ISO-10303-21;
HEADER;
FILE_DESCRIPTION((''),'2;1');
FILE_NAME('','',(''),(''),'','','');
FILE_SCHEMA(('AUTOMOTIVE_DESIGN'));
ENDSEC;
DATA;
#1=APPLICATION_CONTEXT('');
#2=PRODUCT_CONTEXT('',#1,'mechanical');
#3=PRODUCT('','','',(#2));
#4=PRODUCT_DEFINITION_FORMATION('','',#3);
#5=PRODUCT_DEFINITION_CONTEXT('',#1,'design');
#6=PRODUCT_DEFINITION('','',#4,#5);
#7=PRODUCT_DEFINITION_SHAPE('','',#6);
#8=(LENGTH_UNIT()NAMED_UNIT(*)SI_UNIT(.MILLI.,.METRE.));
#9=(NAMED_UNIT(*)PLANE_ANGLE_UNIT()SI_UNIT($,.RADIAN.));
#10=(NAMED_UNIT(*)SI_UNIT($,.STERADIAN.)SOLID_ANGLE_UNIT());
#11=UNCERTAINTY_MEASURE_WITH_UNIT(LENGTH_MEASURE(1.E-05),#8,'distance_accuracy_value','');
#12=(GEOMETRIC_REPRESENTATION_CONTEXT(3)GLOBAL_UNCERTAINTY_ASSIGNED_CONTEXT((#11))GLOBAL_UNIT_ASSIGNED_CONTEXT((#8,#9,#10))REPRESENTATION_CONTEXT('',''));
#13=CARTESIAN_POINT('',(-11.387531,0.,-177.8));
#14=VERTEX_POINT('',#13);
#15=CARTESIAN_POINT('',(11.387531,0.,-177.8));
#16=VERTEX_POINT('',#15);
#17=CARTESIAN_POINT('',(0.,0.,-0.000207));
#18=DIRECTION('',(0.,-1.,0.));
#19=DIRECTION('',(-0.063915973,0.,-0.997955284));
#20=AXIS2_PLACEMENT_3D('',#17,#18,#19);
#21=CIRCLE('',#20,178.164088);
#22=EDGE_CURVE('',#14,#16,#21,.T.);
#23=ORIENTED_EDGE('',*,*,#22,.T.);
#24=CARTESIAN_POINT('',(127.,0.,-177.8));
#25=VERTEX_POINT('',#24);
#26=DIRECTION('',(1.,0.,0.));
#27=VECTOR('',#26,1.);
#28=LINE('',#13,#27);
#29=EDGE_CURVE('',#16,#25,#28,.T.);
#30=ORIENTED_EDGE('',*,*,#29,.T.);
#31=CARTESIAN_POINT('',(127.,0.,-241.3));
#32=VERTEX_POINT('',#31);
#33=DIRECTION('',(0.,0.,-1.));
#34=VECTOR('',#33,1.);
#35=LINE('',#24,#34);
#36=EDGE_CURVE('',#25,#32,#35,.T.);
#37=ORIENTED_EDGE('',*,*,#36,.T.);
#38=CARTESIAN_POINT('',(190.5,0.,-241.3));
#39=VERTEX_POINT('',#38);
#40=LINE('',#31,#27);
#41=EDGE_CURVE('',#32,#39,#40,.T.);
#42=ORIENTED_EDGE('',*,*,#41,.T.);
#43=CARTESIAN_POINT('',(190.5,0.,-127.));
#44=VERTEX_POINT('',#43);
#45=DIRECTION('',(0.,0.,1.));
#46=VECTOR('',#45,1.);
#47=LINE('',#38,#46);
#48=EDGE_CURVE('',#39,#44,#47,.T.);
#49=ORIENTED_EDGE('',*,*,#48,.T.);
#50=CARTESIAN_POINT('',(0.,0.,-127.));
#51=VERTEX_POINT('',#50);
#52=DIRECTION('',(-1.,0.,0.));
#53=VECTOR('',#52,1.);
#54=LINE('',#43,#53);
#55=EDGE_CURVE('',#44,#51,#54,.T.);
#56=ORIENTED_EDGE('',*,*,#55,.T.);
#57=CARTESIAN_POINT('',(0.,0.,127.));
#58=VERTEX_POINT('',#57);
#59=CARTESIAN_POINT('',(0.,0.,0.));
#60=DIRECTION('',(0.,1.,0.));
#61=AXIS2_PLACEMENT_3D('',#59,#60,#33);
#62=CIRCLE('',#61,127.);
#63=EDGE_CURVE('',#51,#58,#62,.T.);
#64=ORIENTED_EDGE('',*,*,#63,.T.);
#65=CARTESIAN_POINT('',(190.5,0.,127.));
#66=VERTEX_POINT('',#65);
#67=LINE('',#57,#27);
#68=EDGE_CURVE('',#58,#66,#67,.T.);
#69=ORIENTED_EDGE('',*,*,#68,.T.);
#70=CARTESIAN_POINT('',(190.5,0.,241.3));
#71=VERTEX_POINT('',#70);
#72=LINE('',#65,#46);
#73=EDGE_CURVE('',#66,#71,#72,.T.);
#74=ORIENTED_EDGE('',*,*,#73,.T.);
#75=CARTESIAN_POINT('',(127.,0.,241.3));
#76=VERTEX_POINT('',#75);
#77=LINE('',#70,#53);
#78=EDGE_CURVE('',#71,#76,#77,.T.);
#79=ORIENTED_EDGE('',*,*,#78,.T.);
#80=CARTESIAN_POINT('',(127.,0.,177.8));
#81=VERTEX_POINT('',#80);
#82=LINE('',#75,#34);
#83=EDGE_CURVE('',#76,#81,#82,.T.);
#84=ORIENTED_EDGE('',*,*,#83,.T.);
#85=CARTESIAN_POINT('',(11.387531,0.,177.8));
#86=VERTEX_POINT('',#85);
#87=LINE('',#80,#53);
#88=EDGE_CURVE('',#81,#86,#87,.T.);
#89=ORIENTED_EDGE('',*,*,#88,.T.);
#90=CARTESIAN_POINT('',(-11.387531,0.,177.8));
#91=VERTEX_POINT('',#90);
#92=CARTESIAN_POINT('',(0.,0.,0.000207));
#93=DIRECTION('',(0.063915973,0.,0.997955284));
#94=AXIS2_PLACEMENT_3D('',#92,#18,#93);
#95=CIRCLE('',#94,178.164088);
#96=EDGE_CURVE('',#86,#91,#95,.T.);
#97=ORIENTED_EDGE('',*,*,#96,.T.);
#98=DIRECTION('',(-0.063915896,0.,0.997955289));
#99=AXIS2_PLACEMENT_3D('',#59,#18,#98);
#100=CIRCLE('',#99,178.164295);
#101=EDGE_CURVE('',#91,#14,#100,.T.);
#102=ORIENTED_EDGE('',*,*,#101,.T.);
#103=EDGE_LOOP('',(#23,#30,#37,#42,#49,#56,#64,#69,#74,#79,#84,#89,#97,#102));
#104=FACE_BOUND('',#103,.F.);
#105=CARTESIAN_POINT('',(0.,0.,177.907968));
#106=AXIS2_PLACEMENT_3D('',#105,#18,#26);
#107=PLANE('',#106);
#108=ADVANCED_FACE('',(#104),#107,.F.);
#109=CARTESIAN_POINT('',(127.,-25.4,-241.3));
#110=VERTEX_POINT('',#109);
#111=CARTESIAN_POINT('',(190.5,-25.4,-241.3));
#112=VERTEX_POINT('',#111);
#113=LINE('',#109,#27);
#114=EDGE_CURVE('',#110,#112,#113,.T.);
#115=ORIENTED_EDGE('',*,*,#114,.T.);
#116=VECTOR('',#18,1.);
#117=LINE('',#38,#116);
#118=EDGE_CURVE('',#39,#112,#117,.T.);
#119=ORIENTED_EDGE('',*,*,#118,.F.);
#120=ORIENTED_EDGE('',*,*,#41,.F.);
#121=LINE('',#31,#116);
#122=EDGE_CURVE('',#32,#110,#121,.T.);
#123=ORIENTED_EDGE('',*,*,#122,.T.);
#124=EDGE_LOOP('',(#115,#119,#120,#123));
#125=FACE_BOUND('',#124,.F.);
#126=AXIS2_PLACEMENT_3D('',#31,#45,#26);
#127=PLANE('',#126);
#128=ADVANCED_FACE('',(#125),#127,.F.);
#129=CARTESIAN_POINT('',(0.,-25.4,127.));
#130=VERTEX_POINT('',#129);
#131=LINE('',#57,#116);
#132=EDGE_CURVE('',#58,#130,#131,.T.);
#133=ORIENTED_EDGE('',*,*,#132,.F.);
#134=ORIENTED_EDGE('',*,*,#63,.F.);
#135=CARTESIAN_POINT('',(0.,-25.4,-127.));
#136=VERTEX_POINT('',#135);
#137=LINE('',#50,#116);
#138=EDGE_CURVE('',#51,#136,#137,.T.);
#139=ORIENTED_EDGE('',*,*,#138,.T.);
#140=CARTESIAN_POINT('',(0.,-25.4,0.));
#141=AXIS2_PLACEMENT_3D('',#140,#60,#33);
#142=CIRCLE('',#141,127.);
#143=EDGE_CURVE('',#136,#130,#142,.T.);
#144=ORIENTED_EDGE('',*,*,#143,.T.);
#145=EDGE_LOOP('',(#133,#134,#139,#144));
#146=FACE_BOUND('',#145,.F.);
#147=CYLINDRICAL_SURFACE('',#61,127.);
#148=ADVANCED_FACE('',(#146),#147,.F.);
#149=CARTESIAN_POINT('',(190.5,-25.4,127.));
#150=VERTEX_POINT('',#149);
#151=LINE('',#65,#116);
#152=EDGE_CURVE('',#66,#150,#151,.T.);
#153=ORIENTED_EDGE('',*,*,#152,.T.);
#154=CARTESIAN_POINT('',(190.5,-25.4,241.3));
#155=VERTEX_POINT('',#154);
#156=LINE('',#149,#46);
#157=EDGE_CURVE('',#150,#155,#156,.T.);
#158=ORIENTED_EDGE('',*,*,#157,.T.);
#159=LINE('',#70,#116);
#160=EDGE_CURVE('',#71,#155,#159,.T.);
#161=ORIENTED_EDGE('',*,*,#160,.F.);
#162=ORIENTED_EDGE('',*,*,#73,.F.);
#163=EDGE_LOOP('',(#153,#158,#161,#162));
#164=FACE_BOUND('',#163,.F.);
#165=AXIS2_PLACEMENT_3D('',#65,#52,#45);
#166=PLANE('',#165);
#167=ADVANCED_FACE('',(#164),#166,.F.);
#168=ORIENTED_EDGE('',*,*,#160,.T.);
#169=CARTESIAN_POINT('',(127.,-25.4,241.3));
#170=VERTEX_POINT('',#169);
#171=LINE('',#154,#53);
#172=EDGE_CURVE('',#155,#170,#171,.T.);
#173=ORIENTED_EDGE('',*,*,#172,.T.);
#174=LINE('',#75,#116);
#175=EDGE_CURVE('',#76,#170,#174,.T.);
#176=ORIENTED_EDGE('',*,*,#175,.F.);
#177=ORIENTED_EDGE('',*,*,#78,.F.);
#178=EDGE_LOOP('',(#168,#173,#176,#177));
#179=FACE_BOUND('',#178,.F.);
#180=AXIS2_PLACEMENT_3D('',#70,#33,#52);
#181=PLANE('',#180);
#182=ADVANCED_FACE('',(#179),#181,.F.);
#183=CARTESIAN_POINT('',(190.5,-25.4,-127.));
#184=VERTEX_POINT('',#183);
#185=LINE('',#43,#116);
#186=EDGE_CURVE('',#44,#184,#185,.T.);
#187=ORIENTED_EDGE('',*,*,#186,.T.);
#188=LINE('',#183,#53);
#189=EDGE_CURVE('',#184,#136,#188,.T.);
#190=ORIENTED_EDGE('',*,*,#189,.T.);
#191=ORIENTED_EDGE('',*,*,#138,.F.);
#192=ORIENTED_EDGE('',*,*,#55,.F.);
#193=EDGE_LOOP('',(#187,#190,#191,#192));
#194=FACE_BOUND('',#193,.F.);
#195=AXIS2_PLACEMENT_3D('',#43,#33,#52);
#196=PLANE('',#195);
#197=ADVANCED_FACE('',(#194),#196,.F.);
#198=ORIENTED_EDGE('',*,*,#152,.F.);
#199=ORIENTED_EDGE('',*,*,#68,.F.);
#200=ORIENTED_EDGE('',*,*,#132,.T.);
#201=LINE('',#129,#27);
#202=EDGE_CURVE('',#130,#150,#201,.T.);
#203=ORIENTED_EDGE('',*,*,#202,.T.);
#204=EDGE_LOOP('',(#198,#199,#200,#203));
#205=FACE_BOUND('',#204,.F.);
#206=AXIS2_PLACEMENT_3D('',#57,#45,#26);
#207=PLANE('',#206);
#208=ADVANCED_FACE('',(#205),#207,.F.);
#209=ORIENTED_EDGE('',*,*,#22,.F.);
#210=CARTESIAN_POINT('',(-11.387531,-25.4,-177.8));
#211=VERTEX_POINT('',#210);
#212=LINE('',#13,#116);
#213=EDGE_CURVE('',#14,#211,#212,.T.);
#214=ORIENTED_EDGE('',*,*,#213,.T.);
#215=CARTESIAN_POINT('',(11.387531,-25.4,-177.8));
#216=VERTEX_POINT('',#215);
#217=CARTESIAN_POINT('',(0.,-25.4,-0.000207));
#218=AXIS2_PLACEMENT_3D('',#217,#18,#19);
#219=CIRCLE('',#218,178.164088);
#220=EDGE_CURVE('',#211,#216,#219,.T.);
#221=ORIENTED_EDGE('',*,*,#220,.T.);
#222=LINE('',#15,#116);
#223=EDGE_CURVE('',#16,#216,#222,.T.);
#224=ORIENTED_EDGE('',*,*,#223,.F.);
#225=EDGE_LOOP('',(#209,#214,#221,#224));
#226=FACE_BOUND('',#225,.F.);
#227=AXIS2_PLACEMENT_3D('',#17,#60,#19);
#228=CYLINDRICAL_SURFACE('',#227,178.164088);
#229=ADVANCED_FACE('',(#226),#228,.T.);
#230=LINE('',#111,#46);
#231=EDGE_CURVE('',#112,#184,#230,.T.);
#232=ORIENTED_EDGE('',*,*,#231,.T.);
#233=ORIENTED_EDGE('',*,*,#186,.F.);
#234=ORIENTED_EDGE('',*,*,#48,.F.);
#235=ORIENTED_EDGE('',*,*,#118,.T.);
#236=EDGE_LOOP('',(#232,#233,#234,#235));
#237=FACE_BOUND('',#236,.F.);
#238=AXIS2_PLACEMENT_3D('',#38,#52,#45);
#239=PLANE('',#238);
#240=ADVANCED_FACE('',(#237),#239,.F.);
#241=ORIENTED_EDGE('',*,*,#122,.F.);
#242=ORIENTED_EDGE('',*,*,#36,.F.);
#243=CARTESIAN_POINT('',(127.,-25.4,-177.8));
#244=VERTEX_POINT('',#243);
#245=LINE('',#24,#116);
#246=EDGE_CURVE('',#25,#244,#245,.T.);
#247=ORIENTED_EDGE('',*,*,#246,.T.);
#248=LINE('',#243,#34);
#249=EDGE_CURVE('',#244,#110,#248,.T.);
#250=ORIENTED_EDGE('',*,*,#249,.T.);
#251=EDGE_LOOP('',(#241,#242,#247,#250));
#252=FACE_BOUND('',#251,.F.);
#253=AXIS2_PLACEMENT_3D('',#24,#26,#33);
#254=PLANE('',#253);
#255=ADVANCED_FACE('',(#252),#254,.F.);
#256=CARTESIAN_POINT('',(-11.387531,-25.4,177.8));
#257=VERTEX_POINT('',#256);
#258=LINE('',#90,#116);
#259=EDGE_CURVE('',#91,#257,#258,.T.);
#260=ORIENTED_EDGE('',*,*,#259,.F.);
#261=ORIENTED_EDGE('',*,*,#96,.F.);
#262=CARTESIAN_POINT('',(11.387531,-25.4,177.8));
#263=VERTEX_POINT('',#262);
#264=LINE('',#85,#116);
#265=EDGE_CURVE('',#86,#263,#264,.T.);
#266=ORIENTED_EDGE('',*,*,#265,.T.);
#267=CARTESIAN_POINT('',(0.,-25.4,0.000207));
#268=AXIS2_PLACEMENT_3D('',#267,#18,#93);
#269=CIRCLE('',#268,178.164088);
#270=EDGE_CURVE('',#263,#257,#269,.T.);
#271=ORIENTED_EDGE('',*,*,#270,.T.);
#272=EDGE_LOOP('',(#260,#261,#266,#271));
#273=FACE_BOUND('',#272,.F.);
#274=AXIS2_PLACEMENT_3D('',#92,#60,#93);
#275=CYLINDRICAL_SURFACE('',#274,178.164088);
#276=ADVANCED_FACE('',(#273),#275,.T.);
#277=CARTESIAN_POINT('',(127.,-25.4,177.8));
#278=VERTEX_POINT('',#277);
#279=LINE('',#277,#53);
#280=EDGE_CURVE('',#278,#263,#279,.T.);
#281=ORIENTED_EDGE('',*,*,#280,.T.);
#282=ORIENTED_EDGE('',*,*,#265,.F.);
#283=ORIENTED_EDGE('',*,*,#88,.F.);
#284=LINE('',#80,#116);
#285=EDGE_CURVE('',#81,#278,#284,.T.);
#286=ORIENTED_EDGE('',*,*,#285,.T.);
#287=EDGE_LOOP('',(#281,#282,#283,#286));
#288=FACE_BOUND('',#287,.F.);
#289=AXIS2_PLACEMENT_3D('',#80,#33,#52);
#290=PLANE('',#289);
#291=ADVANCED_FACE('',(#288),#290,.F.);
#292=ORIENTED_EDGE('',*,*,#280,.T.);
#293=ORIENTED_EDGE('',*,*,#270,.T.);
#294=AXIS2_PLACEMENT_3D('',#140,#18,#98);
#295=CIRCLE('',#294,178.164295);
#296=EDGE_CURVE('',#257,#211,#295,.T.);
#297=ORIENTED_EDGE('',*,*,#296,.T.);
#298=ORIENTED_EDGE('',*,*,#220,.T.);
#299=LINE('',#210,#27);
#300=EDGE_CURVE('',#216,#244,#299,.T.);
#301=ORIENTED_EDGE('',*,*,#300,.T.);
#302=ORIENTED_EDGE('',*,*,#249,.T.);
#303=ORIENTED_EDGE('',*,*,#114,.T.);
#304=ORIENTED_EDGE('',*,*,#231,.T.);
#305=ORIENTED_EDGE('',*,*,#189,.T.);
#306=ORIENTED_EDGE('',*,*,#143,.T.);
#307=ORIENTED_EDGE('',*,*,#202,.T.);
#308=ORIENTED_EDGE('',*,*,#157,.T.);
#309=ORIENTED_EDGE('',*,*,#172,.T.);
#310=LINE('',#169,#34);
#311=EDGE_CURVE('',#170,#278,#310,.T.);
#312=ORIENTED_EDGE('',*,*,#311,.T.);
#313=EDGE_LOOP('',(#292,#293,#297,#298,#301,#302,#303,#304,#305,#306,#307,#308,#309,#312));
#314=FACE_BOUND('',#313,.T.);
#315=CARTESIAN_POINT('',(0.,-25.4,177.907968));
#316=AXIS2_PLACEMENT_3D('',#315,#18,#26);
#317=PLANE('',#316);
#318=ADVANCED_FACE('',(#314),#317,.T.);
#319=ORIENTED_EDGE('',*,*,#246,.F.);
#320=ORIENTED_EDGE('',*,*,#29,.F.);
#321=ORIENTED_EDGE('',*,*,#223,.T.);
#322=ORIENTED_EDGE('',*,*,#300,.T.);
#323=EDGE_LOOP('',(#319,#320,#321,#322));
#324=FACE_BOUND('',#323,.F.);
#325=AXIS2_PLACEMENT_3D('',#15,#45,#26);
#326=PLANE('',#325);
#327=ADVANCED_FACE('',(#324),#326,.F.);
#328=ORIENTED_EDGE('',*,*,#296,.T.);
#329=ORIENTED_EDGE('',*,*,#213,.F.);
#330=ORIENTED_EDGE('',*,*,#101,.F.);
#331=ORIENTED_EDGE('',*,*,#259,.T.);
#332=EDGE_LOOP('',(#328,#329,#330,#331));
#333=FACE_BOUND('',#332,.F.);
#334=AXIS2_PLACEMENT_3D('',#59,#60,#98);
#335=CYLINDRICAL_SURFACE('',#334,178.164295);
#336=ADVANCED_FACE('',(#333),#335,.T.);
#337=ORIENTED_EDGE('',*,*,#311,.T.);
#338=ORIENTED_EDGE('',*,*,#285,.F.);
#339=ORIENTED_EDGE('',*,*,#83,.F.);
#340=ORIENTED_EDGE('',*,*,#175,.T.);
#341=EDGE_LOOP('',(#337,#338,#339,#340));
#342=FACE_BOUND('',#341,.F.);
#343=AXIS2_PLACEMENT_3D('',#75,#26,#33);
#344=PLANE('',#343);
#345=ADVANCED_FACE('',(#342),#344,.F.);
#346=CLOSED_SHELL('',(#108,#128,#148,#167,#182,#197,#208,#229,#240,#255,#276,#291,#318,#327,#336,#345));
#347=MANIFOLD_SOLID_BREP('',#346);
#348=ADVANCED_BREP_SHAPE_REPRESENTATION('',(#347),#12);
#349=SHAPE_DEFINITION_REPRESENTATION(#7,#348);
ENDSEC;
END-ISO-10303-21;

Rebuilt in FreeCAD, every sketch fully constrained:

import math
import FreeCAD as App
import Part
import Sketcher
Q = App.Units.Quantity

doc = App.newDocument("Part")
body = doc.addObject("PartDesign::Body", "Body")

# Sketch on XZ plane
sketch1 = doc.addObject("Sketcher::SketchObject", "Sketch")
body.addObject(sketch1)
sketch1.AttachmentSupport = (doc.XZ_Plane, [""])
sketch1.MapMode = "FlatFace"
sketch1.addGeometry(Part.ArcOfCircle(Part.Circle(App.Vector(0, 0.000207, 0), App.Vector(0, 0, 1), 178.164088), math.radians(86.335386), math.radians(93.664614)), False)
sketch1.addGeometry(Part.ArcOfCircle(Part.Circle(App.Vector(0, 0, 0), App.Vector(0, 0, 1), 178.164295), math.radians(93.664609), math.radians(266.335391)), False)
sketch1.addGeometry(Part.ArcOfCircle(Part.Circle(App.Vector(0, -0.000207, 0), App.Vector(0, 0, 1), 178.164088), math.radians(-93.664614), math.radians(-86.335386)), False)
sketch1.addGeometry(Part.LineSegment(App.Vector(11.387531, -177.8, 0), App.Vector(127, -177.8, 0)), False)
sketch1.addGeometry(Part.LineSegment(App.Vector(127, -177.8, 0), App.Vector(127, -241.3, 0)), False)
sketch1.addGeometry(Part.LineSegment(App.Vector(127, -241.3, 0), App.Vector(190.5, -241.3, 0)), False)
sketch1.addGeometry(Part.LineSegment(App.Vector(190.5, -241.3, 0), App.Vector(190.5, -127, 0)), False)
sketch1.addGeometry(Part.LineSegment(App.Vector(190.5, -127, 0), App.Vector(0, -127, 0)), False)
sketch1.addGeometry(Part.ArcOfCircle(Part.Circle(App.Vector(0, 0, 0), App.Vector(0, 0, 1), 127), math.radians(90), math.radians(270)), False)
sketch1.addGeometry(Part.LineSegment(App.Vector(0, 127, 0), App.Vector(190.5, 127, 0)), False)
sketch1.addGeometry(Part.LineSegment(App.Vector(190.5, 127, 0), App.Vector(190.5, 241.3, 0)), False)
sketch1.addGeometry(Part.LineSegment(App.Vector(190.5, 241.3, 0), App.Vector(127, 241.3, 0)), False)
sketch1.addGeometry(Part.LineSegment(App.Vector(127, 241.3, 0), App.Vector(127, 177.8, 0)), False)
sketch1.addGeometry(Part.LineSegment(App.Vector(127, 177.8, 0), App.Vector(11.387531, 177.8, 0)), False)
sketch1.addConstraint(Sketcher.Constraint("Coincident", 0, 2, 1, 1))
sketch1.addConstraint(Sketcher.Constraint("Coincident", 1, 2, 2, 1))
sketch1.addConstraint(Sketcher.Constraint("Coincident", 2, 2, 3, 1))
sketch1.addConstraint(Sketcher.Constraint("Coincident", 3, 2, 4, 1))
sketch1.addConstraint(Sketcher.Constraint("Coincident", 4, 2, 5, 1))
sketch1.addConstraint(Sketcher.Constraint("Coincident", 5, 2, 6, 1))
sketch1.addConstraint(Sketcher.Constraint("Coincident", 6, 2, 7, 1))
sketch1.addConstraint(Sketcher.Constraint("Coincident", 7, 2, 8, 2))
sketch1.addConstraint(Sketcher.Constraint("Coincident", 8, 1, 9, 1))
sketch1.addConstraint(Sketcher.Constraint("Coincident", 9, 2, 10, 1))
sketch1.addConstraint(Sketcher.Constraint("Coincident", 10, 2, 11, 1))
sketch1.addConstraint(Sketcher.Constraint("Coincident", 11, 2, 12, 1))
sketch1.addConstraint(Sketcher.Constraint("Coincident", 12, 2, 13, 1))
sketch1.addConstraint(Sketcher.Constraint("Coincident", 13, 2, 0, 1))
sketch1.addConstraint(Sketcher.Constraint("Horizontal", 3))
sketch1.addConstraint(Sketcher.Constraint("Vertical", 4))
sketch1.addConstraint(Sketcher.Constraint("Horizontal", 5))
sketch1.addConstraint(Sketcher.Constraint("Vertical", 6))
sketch1.addConstraint(Sketcher.Constraint("Horizontal", 7))
sketch1.addConstraint(Sketcher.Constraint("Horizontal", 9))
sketch1.addConstraint(Sketcher.Constraint("Vertical", 10))
sketch1.addConstraint(Sketcher.Constraint("Horizontal", 11))
sketch1.addConstraint(Sketcher.Constraint("Vertical", 12))
sketch1.addConstraint(Sketcher.Constraint("Horizontal", 13))
sketch1.addConstraint(Sketcher.Constraint("Coincident", 1, 3, -1, 1))
sketch1.addConstraint(Sketcher.Constraint("Coincident", 8, 3, -1, 1))
sketch1.addConstraint(Sketcher.Constraint("PointOnObject", 0, 3, -2))
sketch1.addConstraint(Sketcher.Constraint("PointOnObject", 2, 3, -2))
sketch1.addConstraint(Sketcher.Constraint("PointOnObject", 7, 2, -2))
sketch1.addConstraint(Sketcher.Constraint("PointOnObject", 8, 1, -2))
sketch1.addConstraint(Sketcher.Constraint("Radius", 8, Q("5 in")))
sketch1.addConstraint(Sketcher.Constraint("DistanceX", 5, 1, 5, 2, Q("2.5 in")))
sketch1.addConstraint(Sketcher.Constraint("DistanceX", 7, 2, 7, 1, Q("7.5 in")))
sketch1.addConstraint(Sketcher.Constraint("DistanceX", 9, 1, 9, 2, Q("7.5 in")))
sketch1.addConstraint(Sketcher.Constraint("DistanceX", 11, 2, 11, 1, Q("2.5 in")))
sketch1.addConstraint(Sketcher.Constraint("DistanceY", 4, 2, 4, 1, Q("2.5 in")))
sketch1.addConstraint(Sketcher.Constraint("DistanceY", 6, 1, 6, 2, Q("4.5 in")))
sketch1.addConstraint(Sketcher.Constraint("DistanceY", 10, 1, 10, 2, Q("4.5 in")))
sketch1.addConstraint(Sketcher.Constraint("DistanceY", 12, 2, 12, 1, Q("2.5 in")))
sketch1.addConstraint(Sketcher.Constraint("DistanceY", -1, 1, 0, 2, Q("7 in")))
sketch1.addConstraint(Sketcher.Constraint("DistanceY", 1, 2, -1, 1, Q("7 in")))
sketch1.addConstraint(Sketcher.Constraint("Radius", 0, 178.164088))
sketch1.addConstraint(Sketcher.Constraint("Radius", 2, 178.164088))
sketch1.addConstraint(Sketcher.Constraint("Radius", 1, 178.164295))
pad1 = doc.addObject("PartDesign::Pad", "Pad")
body.addObject(pad1)
pad1.Profile = sketch1
pad1.Length = Q("1 in")

doc.recompute()
